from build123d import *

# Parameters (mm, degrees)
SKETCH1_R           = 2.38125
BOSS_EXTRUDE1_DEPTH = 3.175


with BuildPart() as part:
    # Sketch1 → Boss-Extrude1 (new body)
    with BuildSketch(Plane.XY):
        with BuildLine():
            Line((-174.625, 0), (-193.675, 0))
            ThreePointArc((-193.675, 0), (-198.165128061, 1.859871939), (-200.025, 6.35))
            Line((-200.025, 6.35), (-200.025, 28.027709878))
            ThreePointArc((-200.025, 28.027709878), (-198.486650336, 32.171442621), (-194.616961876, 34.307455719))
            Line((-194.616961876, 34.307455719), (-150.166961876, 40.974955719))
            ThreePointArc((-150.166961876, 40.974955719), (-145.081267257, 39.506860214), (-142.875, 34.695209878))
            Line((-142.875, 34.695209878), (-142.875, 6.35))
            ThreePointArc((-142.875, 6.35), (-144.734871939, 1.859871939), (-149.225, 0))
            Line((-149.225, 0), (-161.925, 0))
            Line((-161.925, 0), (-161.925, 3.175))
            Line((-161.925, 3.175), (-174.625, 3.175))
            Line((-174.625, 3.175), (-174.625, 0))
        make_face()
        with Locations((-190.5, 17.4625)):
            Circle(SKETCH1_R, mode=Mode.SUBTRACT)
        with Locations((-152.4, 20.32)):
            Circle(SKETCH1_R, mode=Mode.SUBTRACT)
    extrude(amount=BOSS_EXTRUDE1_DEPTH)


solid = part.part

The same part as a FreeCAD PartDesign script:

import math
import FreeCAD as App
import Part
import Sketcher
Q = App.Units.Quantity

doc = App.newDocument("Part")
body = doc.addObject("PartDesign::Body", "Body")

sketch1 = body.newObject("Sketcher::SketchObject", "Sketch")
sketch1.AttachmentSupport = (doc.getObject("XY_Plane"), [""])
sketch1.MapMode = "FlatFace"
sketch1.addGeometry([
    Part.LineSegment(App.Vector(-193.7, 0, 0), App.Vector(-174.6, 0, 0)),
    Part.LineSegment(App.Vector(-174.6, 0, 0), App.Vector(-174.6, 3.2, 0)),
    Part.LineSegment(App.Vector(-174.6, 3.2, 0), App.Vector(-161.9, 3.2, 0)),
    Part.LineSegment(App.Vector(-161.9, 3.2, 0), App.Vector(-161.9, 0, 0)),
    Part.LineSegment(App.Vector(-161.9, 0, 0), App.Vector(-149.2, 0, 0)),
    Part.ArcOfCircle(Part.Circle(App.Vector(-149.2, 6.3, 0), App.Vector(0, 0, 1), 6.3), math.radians(-90), math.radians(0)),
    Part.LineSegment(App.Vector(-142.9, 6.3, 0), App.Vector(-142.9, 34.7, 0)),
    Part.ArcOfCircle(Part.Circle(App.Vector(-149.2, 34.7, 0), App.Vector(0, 0, 1), 6.3), math.radians(0), math.radians(99)),
    Part.LineSegment(App.Vector(-150.2, 41, 0), App.Vector(-194.6, 34.3, 0)),
    Part.ArcOfCircle(Part.Circle(App.Vector(-193.7, 28, 0), App.Vector(0, 0, 1), 6.3), math.radians(99), math.radians(180)),
    Part.LineSegment(App.Vector(-200, 28, 0), App.Vector(-200, 6.3, 0)),
    Part.ArcOfCircle(Part.Circle(App.Vector(-193.7, 6.3, 0), App.Vector(0, 0, 1), 6.3), math.radians(180), math.radians(270)),
    Part.Circle(App.Vector(-190.5, 17.5, 0), App.Vector(0, 0, 1), 2.4),
    Part.Circle(App.Vector(-152.4, 20.3, 0), App.Vector(0, 0, 1), 2.4),
], False)
sketch1.addConstraint([
    Sketcher.Constraint("Coincident", 0, 2, 1, 1),
    Sketcher.Constraint("Coincident", 1, 2, 2, 1),
    Sketcher.Constraint("Coincident", 2, 2, 3, 1),
    Sketcher.Constraint("Coincident", 3, 2, 4, 1),
    Sketcher.Constraint("Tangent", 4, 2, 5, 1),
    Sketcher.Constraint("Tangent", 5, 2, 6, 1),
    Sketcher.Constraint("Tangent", 6, 2, 7, 1),
    Sketcher.Constraint("Tangent", 7, 2, 8, 1),
    Sketcher.Constraint("Tangent", 8, 2, 9, 1),
    Sketcher.Constraint("Tangent", 9, 2, 10, 1),
    Sketcher.Constraint("Tangent", 10, 2, 11, 1),
    Sketcher.Constraint("Tangent", 11, 2, 0, 1),
    Sketcher.Constraint("Horizontal", 0),
    Sketcher.Constraint("Vertical", 1),
    Sketcher.Constraint("Horizontal", 2),
    Sketcher.Constraint("Vertical", 3),
    Sketcher.Constraint("Horizontal", 4),
    Sketcher.Constraint("Vertical", 6),
    Sketcher.Constraint("Vertical", 10),
    Sketcher.Constraint("Equal", 5, 7),
    Sketcher.Constraint("Equal", 7, 9),
    Sketcher.Constraint("Equal", 9, 11),
    Sketcher.Constraint("Equal", 12, 13),
    Sketcher.Constraint("PointOnObject", 0, 2, -1),
    Sketcher.Constraint("PointOnObject", 3, 2, -1),
    Sketcher.Constraint("Equal", 2, 4),
    Sketcher.Constraint("Radius", 5, Q("0.25 in")),
    Sketcher.Constraint("Diameter", 12, Q("0.1875 in")),
    Sketcher.Constraint("DistanceX", 2, 1, 2, 2, Q("0.5 in")),
    Sketcher.Constraint("DistanceX", 13, 3, -1, 1, Q("6 in")),
    Sketcher.Constraint("DistanceX", 9, 2, 1, 2, Q("1 in")),
    Sketcher.Constraint("DistanceX", 12, 3, -1, 1, Q("7.5 in")),
    Sketcher.Constraint("DistanceY", -1, 1, 13, 3, Q("0.8 in")),
    Sketcher.Constraint("DistanceY", 1, 1, 1, 2, Q("0.125 in")),
    Sketcher.Constraint("DistanceX", 5, 3, -1, 1, Q("5.875 in")),
    Sketcher.Constraint("DistanceY", -1, 1, 12, 3, Q("0.6875 in")),
    Sketcher.Constraint("DistanceY", 9, 3, 7, 3, Q("0.2625 in")),
    Sketcher.Constraint("DistanceY", 6, 1, 6, 2, Q("28.34521 mm")),
])
pad1 = body.newObject("PartDesign::Pad", "Pad")
pad1.Profile = sketch1
pad1.Length = Q("0.125 in")

doc.recompute()
